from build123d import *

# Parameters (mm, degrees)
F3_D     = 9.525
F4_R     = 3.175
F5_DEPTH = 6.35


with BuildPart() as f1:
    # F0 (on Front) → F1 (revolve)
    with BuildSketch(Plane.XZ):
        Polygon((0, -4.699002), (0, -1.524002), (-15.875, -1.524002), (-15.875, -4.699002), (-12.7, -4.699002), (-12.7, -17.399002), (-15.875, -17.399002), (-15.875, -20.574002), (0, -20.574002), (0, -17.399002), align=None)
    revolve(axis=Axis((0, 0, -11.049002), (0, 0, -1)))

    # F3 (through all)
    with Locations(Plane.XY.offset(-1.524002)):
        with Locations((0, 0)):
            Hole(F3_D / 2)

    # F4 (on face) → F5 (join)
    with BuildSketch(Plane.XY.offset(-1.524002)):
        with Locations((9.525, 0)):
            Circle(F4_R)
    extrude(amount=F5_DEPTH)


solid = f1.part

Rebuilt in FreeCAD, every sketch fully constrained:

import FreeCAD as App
import Part
import Sketcher
Q = App.Units.Quantity


def add_polygon(sketch, points):
    """Adds a closed chain of lines whose ends are joined by coincident constraints."""
    first, n = sketch.GeometryCount, len(points)
    for a, b in zip(points, points[1:] + points[:1]):
        sketch.addGeometry(Part.LineSegment(App.Vector(*a, 0), App.Vector(*b, 0)), False)
    for i in range(n):
        sketch.addConstraint(Sketcher.Constraint("Coincident", first + i, 2, first + (i + 1) % n, 1))

doc = App.newDocument("Part")
body = doc.addObject("PartDesign::Body", "Body")

# Sketch on XZ plane
sketch1 = body.newObject("Sketcher::SketchObject", "Sketch")
sketch1.AttachmentSupport = (doc.getObject("XZ_Plane"), [""])
sketch1.MapMode = "FlatFace"
add_polygon(sketch1, [(0, -1.5), (-15.9, -1.5), (-15.9, -4.7), (-12.7, -4.7), (-12.7, -17.4), (-15.9, -17.4), (-15.9, -20.6), (0, -20.6)])  # lines 0-7
sketch1.addConstraint(Sketcher.Constraint("Horizontal", 0))
sketch1.addConstraint(Sketcher.Constraint("Vertical", 1))
sketch1.addConstraint(Sketcher.Constraint("Horizontal", 2))
sketch1.addConstraint(Sketcher.Constraint("Vertical", 3))
sketch1.addConstraint(Sketcher.Constraint("Horizontal", 4))
sketch1.addConstraint(Sketcher.Constraint("Vertical", 5))
sketch1.addConstraint(Sketcher.Constraint("Horizontal", 6))
sketch1.addConstraint(Sketcher.Constraint("Vertical", 7))
sketch1.addConstraint(Sketcher.Constraint("PointOnObject", 6, 2, -2))
sketch1.addConstraint(Sketcher.Constraint("Vertical", 1, 2, 4, 2))
sketch1.addConstraint(Sketcher.Constraint("Equal", 4, 1))
sketch1.addConstraint(Sketcher.Constraint("Equal", 1, 5))
sketch1.addConstraint(Sketcher.Constraint("DistanceY", 3, 2, 3, 1, Q("0.5 in")))
sketch1.addConstraint(Sketcher.Constraint("DistanceY", 7, 1, 7, 2, Q("0.75 in")))
sketch1.addConstraint(Sketcher.Constraint("DistanceX", 2, 2, -1, 1, Q("0.5 in")))
sketch1.addConstraint(Sketcher.Constraint("DistanceY", 0, 2, -1, 1, Q("0.0600001 in")))
revolution = body.newObject("PartDesign::Revolution", "Revolution")
revolution.Profile = sketch1
revolution.ReferenceAxis = (sketch1, ["V_Axis"])
revolution.Angle = 360

# Sketch on XY plane
sketch2 = body.newObject("Sketcher::SketchObject", "Sketch001")
sketch2.AttachmentSupport = (doc.getObject("XY_Plane"), [""])
sketch2.MapMode = "FlatFace"
sketch2.AttachmentOffset = App.Placement(App.Vector(0, 0, -0.0600001 * 25.4), App.Rotation())
sketch2.addGeometry(Part.Circle(App.Vector(0, 0, 0), App.Vector(0, 0, 1), 4.8), False)
sketch2.addConstraint(Sketcher.Constraint("Coincident", 0, 3, -1, 1))
sketch2.addConstraint(Sketcher.Constraint("Diameter", 0, Q("0.375 in")))
doc.recompute()
hole = body.newObject("PartDesign::Hole", "Hole")
hole.Profile = sketch2
hole.ThreadType = "None"
hole.Diameter = Q("0.375 in")
hole.DepthType = "ThroughAll"

# Sketch on XY plane
sketch3 = body.newObject("Sketcher::SketchObject", "Sketch002")
sketch3.AttachmentSupport = (doc.getObject("XY_Plane"), [""])
sketch3.MapMode = "FlatFace"
sketch3.AttachmentOffset = App.Placement(App.Vector(0, 0, -0.0600001 * 25.4), App.Rotation())
sketch3.addGeometry(Part.Circle(App.Vector(9.5, 0, 0), App.Vector(0, 0, 1), 3.2), False)
sketch3.addConstraint(Sketcher.Constraint("PointOnObject", 0, 3, -1))
sketch3.addConstraint(Sketcher.Constraint("Diameter", 0, Q("0.25 in")))
sketch3.addConstraint(Sketcher.Constraint("DistanceX", -1, 1, 0, 3, Q("0.375 in")))
pad1 = body.newObject("PartDesign::Pad", "Pad")
pad1.Profile = sketch3
pad1.Length = Q("0.25 in")

doc.recompute()
